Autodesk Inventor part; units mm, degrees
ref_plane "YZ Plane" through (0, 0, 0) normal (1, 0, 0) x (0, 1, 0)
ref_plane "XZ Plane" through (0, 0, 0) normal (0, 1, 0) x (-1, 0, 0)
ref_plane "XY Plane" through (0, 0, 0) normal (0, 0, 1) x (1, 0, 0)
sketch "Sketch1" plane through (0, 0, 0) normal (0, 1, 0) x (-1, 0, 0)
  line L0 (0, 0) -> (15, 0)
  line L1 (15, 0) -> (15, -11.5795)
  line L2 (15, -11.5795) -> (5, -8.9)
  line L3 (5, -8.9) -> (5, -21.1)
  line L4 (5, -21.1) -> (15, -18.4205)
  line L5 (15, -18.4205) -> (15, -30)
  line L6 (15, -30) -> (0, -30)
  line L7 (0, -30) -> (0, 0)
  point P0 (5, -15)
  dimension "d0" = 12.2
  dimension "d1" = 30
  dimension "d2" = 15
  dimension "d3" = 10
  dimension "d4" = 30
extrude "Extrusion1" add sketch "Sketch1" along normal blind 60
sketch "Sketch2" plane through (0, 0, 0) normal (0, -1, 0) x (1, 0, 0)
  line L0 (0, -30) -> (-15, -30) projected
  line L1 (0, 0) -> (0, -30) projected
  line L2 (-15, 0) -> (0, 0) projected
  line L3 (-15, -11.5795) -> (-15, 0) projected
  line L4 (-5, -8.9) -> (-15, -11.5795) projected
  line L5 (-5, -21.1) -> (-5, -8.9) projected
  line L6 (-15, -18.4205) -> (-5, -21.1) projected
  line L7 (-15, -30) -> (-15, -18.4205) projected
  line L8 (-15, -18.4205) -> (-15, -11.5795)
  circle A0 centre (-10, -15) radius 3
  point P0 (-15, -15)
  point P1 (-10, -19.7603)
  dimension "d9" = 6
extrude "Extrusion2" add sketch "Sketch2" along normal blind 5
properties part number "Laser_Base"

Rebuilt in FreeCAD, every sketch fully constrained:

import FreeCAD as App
import Part
import Sketcher
from FreeCAD import Vector
Q = App.Units.Quantity


def add_polygon(sketch, points):
    """Adds a closed chain of lines whose ends are joined by coincident constraints."""
    first, n = sketch.GeometryCount, len(points)
    for a, b in zip(points, points[1:] + points[:1]):
        sketch.addGeometry(Part.LineSegment(App.Vector(*a, 0), App.Vector(*b, 0)), False)
    for i in range(n):
        sketch.addConstraint(Sketcher.Constraint("Coincident", first + i, 2, first + (i + 1) % n, 1))

doc = App.newDocument("Part")
body = doc.addObject("PartDesign::Body", "Body")

sketch1 = body.newObject("Sketcher::SketchObject", "Sketch")
sketch1.AttachmentSupport = (doc.getObject("XZ_Plane"), [""])
sketch1.MapMode = "FlatFace"
add_polygon(sketch1, [(-15, 0), (0, 0), (0, -30), (-15, -30), (-15, -18), (-5, -21), (-5, -9), (-15, -12)])
sketch1.addConstraint([
    Sketcher.Constraint("Horizontal", 0),
    Sketcher.Constraint("Vertical", 1),
    Sketcher.Constraint("Horizontal", 2),
    Sketcher.Constraint("Vertical", 3),
    Sketcher.Constraint("Vertical", 5),
    Sketcher.Constraint("Vertical", 7),
    Sketcher.Constraint("Coincident", 0, 2, -1, 1),
    Sketcher.Constraint("Vertical", 3, 2, 6, 2),
    Sketcher.Constraint("Equal", 3, 7),
    Sketcher.Constraint("Equal", 4, 6),
    Sketcher.Constraint("DistanceX", 0, 1, 0, 2, 15.0),
    Sketcher.Constraint("DistanceY", 1, 2, 1, 1, 30.0),
    Sketcher.Constraint("Angle", 4, Q("-15 deg")),
    Sketcher.Constraint("DistanceY", 5, 1, 5, 2, 12.2),
    Sketcher.Constraint("DistanceX", 3, 2, 4, 2, 10.0),
])
pad1 = body.newObject("PartDesign::Pad", "Pad")
pad1.Profile = sketch1
pad1.Length = 60
pad1.Reversed = True

sketch2 = body.newObject("Sketcher::SketchObject", "Sketch001")
sketch2.AttachmentSupport = (doc.getObject("XZ_Plane"), [""])
sketch2.MapMode = "FlatFace"
add_polygon(sketch2, [(-15, -30), (0, -30), (0, 0), (-15, 0)])
sketch2.addGeometry(Part.Circle(Vector(-10, -15, 0), Vector(0, 0, 1), 3), False)
sketch2.addConstraint([
    Sketcher.Constraint("Horizontal", 0),
    Sketcher.Constraint("Vertical", 1),
    Sketcher.Constraint("Horizontal", 2),
    Sketcher.Constraint("Vertical", 3),
    Sketcher.Constraint("Coincident", 1, 2, -1, 1),
    Sketcher.Constraint("Diameter", 4, 6.0),
    Sketcher.Constraint("DistanceX", 0, 1, 0, 2, 15.0),
    Sketcher.Constraint("DistanceY", 1, 1, 1, 2, 30.0),
    Sketcher.Constraint("DistanceX", 4, 3, -1, 1, 10.0),
    Sketcher.Constraint("DistanceY", 4, 3, -1, 1, 15.0),
])
pad2 = body.newObject("PartDesign::Pad", "Pad001")
pad2.Profile = sketch2
pad2.Length = 5

doc.recompute()
